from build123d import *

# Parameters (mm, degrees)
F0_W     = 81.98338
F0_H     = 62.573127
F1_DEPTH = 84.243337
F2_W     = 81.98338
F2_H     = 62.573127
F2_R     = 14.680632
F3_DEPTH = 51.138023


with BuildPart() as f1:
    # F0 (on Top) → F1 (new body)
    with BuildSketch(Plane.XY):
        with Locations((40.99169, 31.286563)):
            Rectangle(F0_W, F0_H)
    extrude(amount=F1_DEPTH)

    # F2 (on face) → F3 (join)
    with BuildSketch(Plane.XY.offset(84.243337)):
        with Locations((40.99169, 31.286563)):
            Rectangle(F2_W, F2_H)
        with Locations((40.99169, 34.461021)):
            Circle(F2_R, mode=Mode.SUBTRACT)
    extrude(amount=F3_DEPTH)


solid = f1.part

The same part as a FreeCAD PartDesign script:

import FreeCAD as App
import Part
import Sketcher
from FreeCAD import Vector

doc = App.newDocument("Part")
body = doc.addObject("PartDesign::Body", "Body")

sketch1 = doc.addObject("Sketcher::SketchObject", "Sketch")
body.addObject(sketch1)
sketch1.AttachmentSupport = (doc.XY_Plane, [""])
sketch1.MapMode = "FlatFace"
sketch1.addGeometry(Part.LineSegment(Vector(0, 63, 0), Vector(0, 0, 0)), False)
sketch1.addGeometry(Part.LineSegment(Vector(0, 0, 0), Vector(82, 0, 0)), False)
sketch1.addGeometry(Part.LineSegment(Vector(82, 0, 0), Vector(82, 63, 0)), False)
sketch1.addGeometry(Part.LineSegment(Vector(82, 63, 0), Vector(0, 63, 0)), False)
sketch1.addConstraint(Sketcher.Constraint("Coincident", 0, 2, 1, 1))
sketch1.addConstraint(Sketcher.Constraint("Coincident", 1, 2, 2, 1))
sketch1.addConstraint(Sketcher.Constraint("Coincident", 2, 2, 3, 1))
sketch1.addConstraint(Sketcher.Constraint("Coincident", 3, 2, 0, 1))
sketch1.addConstraint(Sketcher.Constraint("Vertical", 0))
sketch1.addConstraint(Sketcher.Constraint("Horizontal", 1))
sketch1.addConstraint(Sketcher.Constraint("Vertical", 2))
sketch1.addConstraint(Sketcher.Constraint("Horizontal", 3))
sketch1.addConstraint(Sketcher.Constraint("Coincident", 0, 2, -1, 1))
sketch1.addConstraint(Sketcher.Constraint("DistanceX", 1, 1, 1, 2, 81.98338))
sketch1.addConstraint(Sketcher.Constraint("DistanceY", 0, 2, 0, 1, 62.573127))
pad1 = doc.addObject("PartDesign::Pad", "Pad")
body.addObject(pad1)
pad1.Profile = sketch1
pad1.Length = 84.243337

sketch2 = doc.addObject("Sketcher::SketchObject", "Sketch001")
body.addObject(sketch2)
sketch2.AttachmentSupport = (doc.XY_Plane, [""])
sketch2.MapMode = "FlatFace"
sketch2.AttachmentOffset = App.Placement(Vector(0, 0, 84.243337), App.Rotation())
sketch2.addGeometry(Part.LineSegment(Vector(0, 63, 0), Vector(0, 0, 0)), False)
sketch2.addGeometry(Part.LineSegment(Vector(0, 0, 0), Vector(82, 0, 0)), False)
sketch2.addGeometry(Part.LineSegment(Vector(82, 0, 0), Vector(82, 63, 0)), False)
sketch2.addGeometry(Part.LineSegment(Vector(82, 63, 0), Vector(0, 63, 0)), False)
sketch2.addGeometry(Part.Circle(Vector(41, 34, 0), Vector(0, 0, 1), 15), False)
sketch2.addConstraint(Sketcher.Constraint("Coincident", 0, 2, 1, 1))
sketch2.addConstraint(Sketcher.Constraint("Coincident", 1, 2, 2, 1))
sketch2.addConstraint(Sketcher.Constraint("Coincident", 2, 2, 3, 1))
sketch2.addConstraint(Sketcher.Constraint("Coincident", 3, 2, 0, 1))
sketch2.addConstraint(Sketcher.Constraint("Vertical", 0))
sketch2.addConstraint(Sketcher.Constraint("Horizontal", 1))
sketch2.addConstraint(Sketcher.Constraint("Vertical", 2))
sketch2.addConstraint(Sketcher.Constraint("Horizontal", 3))
sketch2.addConstraint(Sketcher.Constraint("Coincident", 0, 2, -1, 1))
sketch2.addConstraint(Sketcher.Constraint("Diameter", 4, 29.361264))
sketch2.addConstraint(Sketcher.Constraint("DistanceX", 1, 1, 1, 2, 81.98338))
sketch2.addConstraint(Sketcher.Constraint("DistanceY", 0, 2, 0, 1, 62.573127))
sketch2.addConstraint(Sketcher.Constraint("DistanceX", -1, 1, 4, 3, 40.99169))
sketch2.addConstraint(Sketcher.Constraint("DistanceY", -1, 1, 4, 3, 34.461021))
pad2 = doc.addObject("PartDesign::Pad", "Pad001")
body.addObject(pad2)
pad2.Profile = sketch2
pad2.Length = 51.138023

doc.recompute()
